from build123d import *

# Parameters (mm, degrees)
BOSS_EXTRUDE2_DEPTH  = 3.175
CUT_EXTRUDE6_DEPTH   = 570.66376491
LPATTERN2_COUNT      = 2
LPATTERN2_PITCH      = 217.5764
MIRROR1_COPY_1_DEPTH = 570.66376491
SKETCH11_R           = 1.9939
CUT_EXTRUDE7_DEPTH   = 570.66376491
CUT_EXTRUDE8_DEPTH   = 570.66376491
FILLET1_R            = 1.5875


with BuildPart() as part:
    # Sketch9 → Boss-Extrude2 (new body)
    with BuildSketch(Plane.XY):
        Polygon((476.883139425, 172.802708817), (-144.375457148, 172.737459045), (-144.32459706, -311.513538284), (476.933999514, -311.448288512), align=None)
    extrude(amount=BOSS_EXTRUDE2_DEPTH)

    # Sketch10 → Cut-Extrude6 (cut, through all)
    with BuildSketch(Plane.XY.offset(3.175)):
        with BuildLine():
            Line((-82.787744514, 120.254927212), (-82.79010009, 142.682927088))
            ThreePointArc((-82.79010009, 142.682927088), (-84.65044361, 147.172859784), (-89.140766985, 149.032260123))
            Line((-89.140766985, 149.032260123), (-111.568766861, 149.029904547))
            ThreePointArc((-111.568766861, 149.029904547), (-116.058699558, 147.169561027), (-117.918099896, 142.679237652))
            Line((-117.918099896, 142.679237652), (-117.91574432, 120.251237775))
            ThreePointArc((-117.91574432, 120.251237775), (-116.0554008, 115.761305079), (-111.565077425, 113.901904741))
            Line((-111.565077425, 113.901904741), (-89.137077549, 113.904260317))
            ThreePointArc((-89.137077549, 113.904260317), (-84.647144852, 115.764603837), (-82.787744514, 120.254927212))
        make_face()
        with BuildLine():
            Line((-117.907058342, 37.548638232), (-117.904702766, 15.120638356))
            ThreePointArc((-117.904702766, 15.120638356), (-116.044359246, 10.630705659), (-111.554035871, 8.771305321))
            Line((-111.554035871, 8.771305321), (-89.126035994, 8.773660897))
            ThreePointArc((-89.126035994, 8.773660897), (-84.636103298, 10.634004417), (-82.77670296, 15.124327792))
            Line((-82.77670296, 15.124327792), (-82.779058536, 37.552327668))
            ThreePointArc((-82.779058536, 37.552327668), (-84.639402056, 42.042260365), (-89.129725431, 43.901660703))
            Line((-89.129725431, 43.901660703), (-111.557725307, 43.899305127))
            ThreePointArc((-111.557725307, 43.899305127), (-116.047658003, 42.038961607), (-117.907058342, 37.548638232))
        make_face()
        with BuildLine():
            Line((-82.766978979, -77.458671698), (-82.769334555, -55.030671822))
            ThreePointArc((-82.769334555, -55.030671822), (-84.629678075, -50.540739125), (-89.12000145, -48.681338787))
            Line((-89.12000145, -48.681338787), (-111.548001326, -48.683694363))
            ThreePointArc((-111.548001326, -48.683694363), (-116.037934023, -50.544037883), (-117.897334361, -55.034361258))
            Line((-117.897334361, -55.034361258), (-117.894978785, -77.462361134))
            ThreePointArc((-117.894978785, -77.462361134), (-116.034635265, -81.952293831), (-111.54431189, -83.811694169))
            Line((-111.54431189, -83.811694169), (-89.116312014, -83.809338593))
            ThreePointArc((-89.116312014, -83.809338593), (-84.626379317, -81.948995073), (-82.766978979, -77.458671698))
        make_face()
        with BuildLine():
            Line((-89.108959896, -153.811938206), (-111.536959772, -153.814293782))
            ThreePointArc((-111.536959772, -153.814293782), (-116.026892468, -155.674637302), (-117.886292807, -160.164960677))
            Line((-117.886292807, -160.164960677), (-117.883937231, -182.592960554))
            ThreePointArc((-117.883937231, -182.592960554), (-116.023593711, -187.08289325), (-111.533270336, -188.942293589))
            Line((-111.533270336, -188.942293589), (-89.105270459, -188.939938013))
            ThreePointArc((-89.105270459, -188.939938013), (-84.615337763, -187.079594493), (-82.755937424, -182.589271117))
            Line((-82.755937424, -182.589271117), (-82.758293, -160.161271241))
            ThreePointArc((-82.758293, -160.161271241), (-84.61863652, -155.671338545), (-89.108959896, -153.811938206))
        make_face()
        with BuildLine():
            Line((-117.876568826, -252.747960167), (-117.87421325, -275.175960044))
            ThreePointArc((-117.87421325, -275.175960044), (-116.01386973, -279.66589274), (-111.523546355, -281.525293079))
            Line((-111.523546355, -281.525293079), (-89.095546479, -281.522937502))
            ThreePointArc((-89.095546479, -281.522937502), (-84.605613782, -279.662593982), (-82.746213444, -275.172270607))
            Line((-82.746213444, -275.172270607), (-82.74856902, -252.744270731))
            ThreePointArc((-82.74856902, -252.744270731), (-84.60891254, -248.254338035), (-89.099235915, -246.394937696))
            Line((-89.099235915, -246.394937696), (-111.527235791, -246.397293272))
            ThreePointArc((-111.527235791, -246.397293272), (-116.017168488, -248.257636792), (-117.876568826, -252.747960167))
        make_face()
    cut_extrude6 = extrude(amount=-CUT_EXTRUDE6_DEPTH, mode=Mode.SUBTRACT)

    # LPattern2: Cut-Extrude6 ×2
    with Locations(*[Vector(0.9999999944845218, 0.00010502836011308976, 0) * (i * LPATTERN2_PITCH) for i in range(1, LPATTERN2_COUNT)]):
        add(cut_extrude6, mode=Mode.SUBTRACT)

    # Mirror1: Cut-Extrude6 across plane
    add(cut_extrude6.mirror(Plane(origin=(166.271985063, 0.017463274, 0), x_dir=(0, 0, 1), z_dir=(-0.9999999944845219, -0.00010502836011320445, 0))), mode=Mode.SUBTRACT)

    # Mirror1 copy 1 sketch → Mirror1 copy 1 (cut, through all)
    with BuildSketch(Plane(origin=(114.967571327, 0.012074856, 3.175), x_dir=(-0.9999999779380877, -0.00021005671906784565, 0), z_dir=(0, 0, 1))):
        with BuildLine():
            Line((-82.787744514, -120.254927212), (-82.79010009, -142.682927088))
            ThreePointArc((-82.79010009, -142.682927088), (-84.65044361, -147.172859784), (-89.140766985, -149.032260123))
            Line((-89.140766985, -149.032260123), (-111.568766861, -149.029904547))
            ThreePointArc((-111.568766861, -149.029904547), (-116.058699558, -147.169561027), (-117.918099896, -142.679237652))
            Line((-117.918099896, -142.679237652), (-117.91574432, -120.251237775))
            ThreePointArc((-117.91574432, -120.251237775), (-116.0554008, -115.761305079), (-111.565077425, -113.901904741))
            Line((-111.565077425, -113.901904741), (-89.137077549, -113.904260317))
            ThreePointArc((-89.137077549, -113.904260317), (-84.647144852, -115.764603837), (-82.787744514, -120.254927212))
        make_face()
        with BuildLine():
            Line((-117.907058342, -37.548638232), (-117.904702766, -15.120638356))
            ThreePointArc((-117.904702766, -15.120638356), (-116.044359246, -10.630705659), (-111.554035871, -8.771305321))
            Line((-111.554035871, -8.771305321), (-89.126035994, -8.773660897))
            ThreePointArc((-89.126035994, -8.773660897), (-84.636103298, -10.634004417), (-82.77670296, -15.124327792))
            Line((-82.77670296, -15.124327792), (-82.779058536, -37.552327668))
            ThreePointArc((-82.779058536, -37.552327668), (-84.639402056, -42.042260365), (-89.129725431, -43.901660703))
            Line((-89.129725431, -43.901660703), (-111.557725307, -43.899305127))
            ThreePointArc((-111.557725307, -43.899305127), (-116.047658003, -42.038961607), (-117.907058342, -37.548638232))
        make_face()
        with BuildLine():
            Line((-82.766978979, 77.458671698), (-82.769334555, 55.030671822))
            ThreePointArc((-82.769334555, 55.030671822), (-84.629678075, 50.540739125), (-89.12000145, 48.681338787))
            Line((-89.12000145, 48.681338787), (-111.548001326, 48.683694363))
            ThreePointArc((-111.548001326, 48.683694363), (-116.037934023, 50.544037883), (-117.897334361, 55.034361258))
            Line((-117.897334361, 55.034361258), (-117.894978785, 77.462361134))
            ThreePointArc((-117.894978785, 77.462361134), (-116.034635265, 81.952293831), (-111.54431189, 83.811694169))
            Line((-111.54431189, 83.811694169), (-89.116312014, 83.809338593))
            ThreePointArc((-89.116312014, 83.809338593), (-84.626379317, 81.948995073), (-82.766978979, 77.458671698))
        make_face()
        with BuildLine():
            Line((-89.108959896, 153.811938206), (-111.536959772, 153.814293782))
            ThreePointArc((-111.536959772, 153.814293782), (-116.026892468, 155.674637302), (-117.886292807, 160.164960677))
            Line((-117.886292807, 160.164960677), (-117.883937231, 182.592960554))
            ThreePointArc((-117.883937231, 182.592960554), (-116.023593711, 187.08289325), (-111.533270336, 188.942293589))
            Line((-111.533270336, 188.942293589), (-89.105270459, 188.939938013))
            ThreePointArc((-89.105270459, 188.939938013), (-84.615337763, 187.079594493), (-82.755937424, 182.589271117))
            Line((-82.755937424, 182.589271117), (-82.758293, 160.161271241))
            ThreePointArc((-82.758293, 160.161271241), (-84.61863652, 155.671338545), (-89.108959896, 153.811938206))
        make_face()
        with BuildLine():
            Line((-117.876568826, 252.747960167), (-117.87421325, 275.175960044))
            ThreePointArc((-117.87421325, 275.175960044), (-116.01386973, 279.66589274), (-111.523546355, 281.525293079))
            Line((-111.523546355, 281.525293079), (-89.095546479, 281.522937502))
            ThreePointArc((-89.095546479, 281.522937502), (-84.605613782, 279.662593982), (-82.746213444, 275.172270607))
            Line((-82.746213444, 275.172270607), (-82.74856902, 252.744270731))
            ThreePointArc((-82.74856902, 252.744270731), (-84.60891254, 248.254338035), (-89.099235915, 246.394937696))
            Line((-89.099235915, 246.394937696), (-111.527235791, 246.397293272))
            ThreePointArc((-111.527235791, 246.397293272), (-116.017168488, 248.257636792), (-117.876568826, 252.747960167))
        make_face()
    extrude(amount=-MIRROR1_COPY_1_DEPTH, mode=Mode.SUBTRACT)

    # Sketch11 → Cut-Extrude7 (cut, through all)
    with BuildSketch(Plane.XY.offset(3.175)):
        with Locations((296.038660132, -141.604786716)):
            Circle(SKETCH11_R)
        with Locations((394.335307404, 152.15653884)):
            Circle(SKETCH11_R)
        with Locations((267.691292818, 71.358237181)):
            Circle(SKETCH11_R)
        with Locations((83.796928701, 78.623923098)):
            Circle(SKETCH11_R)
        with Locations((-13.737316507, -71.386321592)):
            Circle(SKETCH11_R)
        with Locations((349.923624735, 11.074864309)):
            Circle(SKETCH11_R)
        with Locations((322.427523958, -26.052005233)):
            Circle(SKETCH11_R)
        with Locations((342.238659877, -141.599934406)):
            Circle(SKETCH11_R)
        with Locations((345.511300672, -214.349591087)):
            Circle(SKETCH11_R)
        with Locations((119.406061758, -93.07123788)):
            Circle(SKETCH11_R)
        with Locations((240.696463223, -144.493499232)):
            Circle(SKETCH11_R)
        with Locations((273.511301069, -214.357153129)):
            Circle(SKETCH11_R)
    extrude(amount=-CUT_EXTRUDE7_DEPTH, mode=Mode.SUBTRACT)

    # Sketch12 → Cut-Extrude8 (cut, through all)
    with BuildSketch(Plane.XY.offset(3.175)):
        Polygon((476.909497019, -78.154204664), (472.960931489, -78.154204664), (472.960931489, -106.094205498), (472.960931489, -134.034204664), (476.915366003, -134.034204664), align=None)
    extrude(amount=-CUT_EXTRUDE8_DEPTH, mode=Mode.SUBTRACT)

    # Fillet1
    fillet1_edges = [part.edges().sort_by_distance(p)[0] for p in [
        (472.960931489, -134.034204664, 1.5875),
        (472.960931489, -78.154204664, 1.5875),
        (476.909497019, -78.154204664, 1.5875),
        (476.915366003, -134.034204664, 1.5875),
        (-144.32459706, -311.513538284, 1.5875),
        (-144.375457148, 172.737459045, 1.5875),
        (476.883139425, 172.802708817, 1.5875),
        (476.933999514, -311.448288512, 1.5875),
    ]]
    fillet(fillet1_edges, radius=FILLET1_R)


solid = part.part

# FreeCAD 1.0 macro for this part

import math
import FreeCAD as App
import Part
import Sketcher
from FreeCAD import Vector
Q = App.Units.Quantity


def edges_at(feature, points):
    """Names of the edges that pass closest to the given points."""
    edges = feature.Shape.Edges
    near = lambda p: min(range(len(edges)), key=lambda i: edges[i].distToShape(Part.Vertex(*p))[0])
    return sorted({f"Edge{near(p) + 1}" for p in points})

doc = App.newDocument("Part")
body = doc.addObject("PartDesign::Body", "Body")

# Sketch on XY plane
sketch1 = body.newObject("Sketcher::SketchObject", "Sketch")
sketch1.AttachmentSupport = (doc.getObject("XY_Plane"), [""])
sketch1.MapMode = "FlatFace"
sketch1.addGeometry(Part.LineSegment(Vector(477, 173, 0), Vector(-144, 173, 0)), False)
sketch1.addGeometry(Part.LineSegment(Vector(-144, 173, 0), Vector(-144, -312, 0)), False)
sketch1.addGeometry(Part.LineSegment(Vector(-144, -312, 0), Vector(477, -311, 0)), False)
sketch1.addGeometry(Part.LineSegment(Vector(477, -311, 0), Vector(477, 173, 0)), False)
sketch1.addConstraint(Sketcher.Constraint("Coincident", 0, 2, 1, 1))
sketch1.addConstraint(Sketcher.Constraint("Coincident", 1, 2, 2, 1))
sketch1.addConstraint(Sketcher.Constraint("Coincident", 2, 2, 3, 1))
sketch1.addConstraint(Sketcher.Constraint("Coincident", 3, 2, 0, 1))
sketch1.addConstraint(Sketcher.Constraint("Perpendicular", 0, 1))
sketch1.addConstraint(Sketcher.Constraint("Perpendicular", 1, 2))
sketch1.addConstraint(Sketcher.Constraint("Perpendicular", 2, 3))
sketch1.addConstraint(Sketcher.Constraint("Distance", 0, Q("24.459 in")))
sketch1.addConstraint(Sketcher.Constraint("Distance", 1, Q("19.065 in")))
sketch1.addConstraint(Sketcher.Constraint("DistanceX", -1, 1, 2, 2, Q("476.934 mm")))
sketch1.addConstraint(Sketcher.Constraint("DistanceY", -1, 1, 0, 2, Q("172.737459 mm")))
sketch1.addConstraint(Sketcher.Constraint("DistanceY", 2, 2, -1, 1, Q("311.448289 mm")))
pad1 = body.newObject("PartDesign::Pad", "Pad")
pad1.Profile = sketch1
pad1.Length = Q("0.125 in")

# Sketch on XY plane
sketch2 = body.newObject("Sketcher::SketchObject", "Sketch001")
sketch2.AttachmentSupport = (doc.getObject("XY_Plane"), [""])
sketch2.MapMode = "FlatFace"
sketch2.AttachmentOffset = App.Placement(Vector(0, 0, 0.125 * 25.4), App.Rotation())
sketch2.addGeometry(Part.LineSegment(Vector(-83, 120, 0), Vector(-83, 143, 0)), False)
sketch2.addGeometry(Part.ArcOfCircle(Part.Circle(Vector(-89, 143, 0), Vector(0, 0, 1), 6), math.radians(0), math.radians(90)), False)
sketch2.addGeometry(Part.LineSegment(Vector(-89, 149, 0), Vector(-112, 149, 0)), False)
sketch2.addGeometry(Part.ArcOfCircle(Part.Circle(Vector(-112, 143, 0), Vector(0, 0, 1), 6), math.radians(90), math.radians(180)), False)
sketch2.addGeometry(Part.LineSegment(Vector(-118, 143, 0), Vector(-118, 120, 0)), False)
sketch2.addGeometry(Part.ArcOfCircle(Part.Circle(Vector(-112, 120, 0), Vector(0, 0, 1), 6), math.radians(-180), math.radians(-90)), False)
sketch2.addGeometry(Part.LineSegment(Vector(-112, 114, 0), Vector(-89, 114, 0)), False)
sketch2.addGeometry(Part.ArcOfCircle(Part.Circle(Vector(-89, 120, 0), Vector(0, 0, 1), 6), math.radians(-90), math.radians(0)), False)
sketch2.addGeometry(Part.LineSegment(Vector(-118, 38, 0), Vector(-118, 15, 0)), False)
sketch2.addGeometry(Part.ArcOfCircle(Part.Circle(Vector(-112, 15, 0), Vector(0, 0, 1), 6), math.radians(-180), math.radians(-90)), False)
sketch2.addGeometry(Part.LineSegment(Vector(-112, 9, 0), Vector(-89, 9, 0)), False)
sketch2.addGeometry(Part.ArcOfCircle(Part.Circle(Vector(-89, 15, 0), Vector(0, 0, 1), 6), math.radians(-90), math.radians(0)), False)
sketch2.addGeometry(Part.LineSegment(Vector(-83, 15, 0), Vector(-83, 38, 0)), False)
sketch2.addGeometry(Part.ArcOfCircle(Part.Circle(Vector(-89, 38, 0), Vector(0, 0, 1), 6), math.radians(0), math.radians(90)), False)
sketch2.addGeometry(Part.LineSegment(Vector(-89, 44, 0), Vector(-112, 44, 0)), False)
sketch2.addGeometry(Part.ArcOfCircle(Part.Circle(Vector(-112, 38, 0), Vector(0, 0, 1), 6), math.radians(90), math.radians(180)), False)
sketch2.addGeometry(Part.LineSegment(Vector(-83, -77, 0), Vector(-83, -55, 0)), False)
sketch2.addGeometry(Part.ArcOfCircle(Part.Circle(Vector(-89, -55, 0), Vector(0, 0, 1), 6), math.radians(0), math.radians(90)), False)
sketch2.addGeometry(Part.LineSegment(Vector(-89, -49, 0), Vector(-112, -49, 0)), False)
sketch2.addGeometry(Part.ArcOfCircle(Part.Circle(Vector(-112, -55, 0), Vector(0, 0, 1), 6), math.radians(90), math.radians(180)), False)
sketch2.addGeometry(Part.LineSegment(Vector(-118, -55, 0), Vector(-118, -77, 0)), False)
sketch2.addGeometry(Part.ArcOfCircle(Part.Circle(Vector(-112, -77, 0), Vector(0, 0, 1), 6), math.radians(-180), math.radians(-90)), False)
sketch2.addGeometry(Part.LineSegment(Vector(-112, -84, 0), Vector(-89, -84, 0)), False)
sketch2.addGeometry(Part.ArcOfCircle(Part.Circle(Vector(-89, -77, 0), Vector(0, 0, 1), 6), math.radians(-90), math.radians(0)), False)
sketch2.addGeometry(Part.LineSegment(Vector(-89, -154, 0), Vector(-112, -154, 0)), False)
sketch2.addGeometry(Part.ArcOfCircle(Part.Circle(Vector(-112, -160, 0), Vector(0, 0, 1), 6), math.radians(90), math.radians(180)), False)
sketch2.addGeometry(Part.LineSegment(Vector(-118, -160, 0), Vector(-118, -183, 0)), False)
sketch2.addGeometry(Part.ArcOfCircle(Part.Circle(Vector(-112, -183, 0), Vector(0, 0, 1), 6), math.radians(-180), math.radians(-90)), False)
sketch2.addGeometry(Part.LineSegment(Vector(-112, -189, 0), Vector(-89, -189, 0)), False)
sketch2.addGeometry(Part.ArcOfCircle(Part.Circle(Vector(-89, -183, 0), Vector(0, 0, 1), 6), math.radians(-90), math.radians(0)), False)
sketch2.addGeometry(Part.LineSegment(Vector(-83, -183, 0), Vector(-83, -160, 0)), False)
sketch2.addGeometry(Part.ArcOfCircle(Part.Circle(Vector(-89, -160, 0), Vector(0, 0, 1), 6), math.radians(0), math.radians(90)), False)
sketch2.addGeometry(Part.LineSegment(Vector(-118, -253, 0), Vector(-118, -275, 0)), False)
sketch2.addGeometry(Part.ArcOfCircle(Part.Circle(Vector(-112, -275, 0), Vector(0, 0, 1), 6), math.radians(-180), math.radians(-90)), False)
sketch2.addGeometry(Part.LineSegment(Vector(-112, -282, 0), Vector(-89, -282, 0)), False)
sketch2.addGeometry(Part.ArcOfCircle(Part.Circle(Vector(-89, -275, 0), Vector(0, 0, 1), 6), math.radians(-90), math.radians(0)), False)
sketch2.addGeometry(Part.LineSegment(Vector(-83, -275, 0), Vector(-83, -253, 0)), False)
sketch2.addGeometry(Part.ArcOfCircle(Part.Circle(Vector(-89, -253, 0), Vector(0, 0, 1), 6), math.radians(0), math.radians(90)), False)
sketch2.addGeometry(Part.LineSegment(Vector(-89, -246, 0), Vector(-112, -246, 0)), False)
sketch2.addGeometry(Part.ArcOfCircle(Part.Circle(Vector(-112, -253, 0), Vector(0, 0, 1), 6), math.radians(90), math.radians(180)), False)
sketch2.addConstraint(Sketcher.Constraint("Tangent", 0, 2, 1, 1))
sketch2.addConstraint(Sketcher.Constraint("Tangent", 1, 2, 2, 1))
sketch2.addConstraint(Sketcher.Constraint("Tangent", 2, 2, 3, 1))
sketch2.addConstraint(Sketcher.Constraint("Tangent", 3, 2, 4, 1))
sketch2.addConstraint(Sketcher.Constraint("Tangent", 4, 2, 5, 1))
sketch2.addConstraint(Sketcher.Constraint("Tangent", 5, 2, 6, 1))
sketch2.addConstraint(Sketcher.Constraint("Tangent", 6, 2, 7, 1))
sketch2.addConstraint(Sketcher.Constraint("Tangent", 7, 2, 0, 1))
sketch2.addConstraint(Sketcher.Constraint("Tangent", 8, 2, 9, 1))
sketch2.addConstraint(Sketcher.Constraint("Tangent", 9, 2, 10, 1))
sketch2.addConstraint(Sketcher.Constraint("Tangent", 10, 2, 11, 1))
sketch2.addConstraint(Sketcher.Constraint("Tangent", 11, 2, 12, 1))
sketch2.addConstraint(Sketcher.Constraint("Tangent", 12, 2, 13, 1))
sketch2.addConstraint(Sketcher.Constraint("Tangent", 13, 2, 14, 1))
sketch2.addConstraint(Sketcher.Constraint("Tangent", 14, 2, 15, 1))
sketch2.addConstraint(Sketcher.Constraint("Tangent", 15, 2, 8, 1))
sketch2.addConstraint(Sketcher.Constraint("Tangent", 16, 2, 17, 1))
sketch2.addConstraint(Sketcher.Constraint("Tangent", 17, 2, 18, 1))
sketch2.addConstraint(Sketcher.Constraint("Tangent", 18, 2, 19, 1))
sketch2.addConstraint(Sketcher.Constraint("Tangent", 19, 2, 20, 1))
sketch2.addConstraint(Sketcher.Constraint("Tangent", 20, 2, 21, 1))
sketch2.addConstraint(Sketcher.Constraint("Tangent", 21, 2, 22, 1))
sketch2.addConstraint(Sketcher.Constraint("Tangent", 22, 2, 23, 1))
sketch2.addConstraint(Sketcher.Constraint("Tangent", 23, 2, 16, 1))
sketch2.addConstraint(Sketcher.Constraint("Tangent", 24, 2, 25, 1))
sketch2.addConstraint(Sketcher.Constraint("Tangent", 25, 2, 26, 1))
sketch2.addConstraint(Sketcher.Constraint("Tangent", 26, 2, 27, 1))
sketch2.addConstraint(Sketcher.Constraint("Tangent", 27, 2, 28, 1))
sketch2.addConstraint(Sketcher.Constraint("Tangent", 28, 2, 29, 1))
sketch2.addConstraint(Sketcher.Constraint("Tangent", 29, 2, 30, 1))
sketch2.addConstraint(Sketcher.Constraint("Tangent", 30, 2, 31, 1))
sketch2.addConstraint(Sketcher.Constraint("Tangent", 31, 2, 24, 1))
sketch2.addConstraint(Sketcher.Constraint("Tangent", 32, 2, 33, 1))
sketch2.addConstraint(Sketcher.Constraint("Tangent", 33, 2, 34, 1))
sketch2.addConstraint(Sketcher.Constraint("Tangent", 34, 2, 35, 1))
sketch2.addConstraint(Sketcher.Constraint("Tangent", 35, 2, 36, 1))
sketch2.addConstraint(Sketcher.Constraint("Tangent", 36, 2, 37, 1))
sketch2.addConstraint(Sketcher.Constraint("Tangent", 37, 2, 38, 1))
sketch2.addConstraint(Sketcher.Constraint("Tangent", 38, 2, 39, 1))
sketch2.addConstraint(Sketcher.Constraint("Tangent", 39, 2, 32, 1))
sketch2.addConstraint(Sketcher.Constraint("Equal", 1, 3))
sketch2.addConstraint(Sketcher.Constraint("Equal", 3, 5))
sketch2.addConstraint(Sketcher.Constraint("Equal", 5, 7))
sketch2.addConstraint(Sketcher.Constraint("Equal", 7, 9))
sketch2.addConstraint(Sketcher.Constraint("Equal", 9, 11))
sketch2.addConstraint(Sketcher.Constraint("Equal", 11, 13))
sketch2.addConstraint(Sketcher.Constraint("Equal", 13, 15))
sketch2.addConstraint(Sketcher.Constraint("Equal", 15, 17))
sketch2.addConstraint(Sketcher.Constraint("Equal", 17, 19))
sketch2.addConstraint(Sketcher.Constraint("Equal", 19, 21))
sketch2.addConstraint(Sketcher.Constraint("Equal", 21, 23))
sketch2.addConstraint(Sketcher.Constraint("Equal", 23, 25))
sketch2.addConstraint(Sketcher.Constraint("Equal", 25, 27))
sketch2.addConstraint(Sketcher.Constraint("Equal", 27, 29))
sketch2.addConstraint(Sketcher.Constraint("Equal", 29, 31))
sketch2.addConstraint(Sketcher.Constraint("Equal", 31, 33))
sketch2.addConstraint(Sketcher.Constraint("Equal", 33, 35))
sketch2.addConstraint(Sketcher.Constraint("Equal", 35, 37))
sketch2.addConstraint(Sketcher.Constraint("Equal", 37, 39))
sketch2.addConstraint(Sketcher.Constraint("Perpendicular", 0, 2))
sketch2.addConstraint(Sketcher.Constraint("Perpendicular", 2, 4))
sketch2.addConstraint(Sketcher.Constraint("Perpendicular", 4, 6))
sketch2.addConstraint(Sketcher.Constraint("Perpendicular", 6, 8))
sketch2.addConstraint(Sketcher.Constraint("Perpendicular", 8, 10))
sketch2.addConstraint(Sketcher.Constraint("Perpendicular", 10, 12))
sketch2.addConstraint(Sketcher.Constraint("Perpendicular", 12, 14))
sketch2.addConstraint(Sketcher.Constraint("Perpendicular", 14, 16))
sketch2.addConstraint(Sketcher.Constraint("Perpendicular", 16, 18))
sketch2.addConstraint(Sketcher.Constraint("Perpendicular", 18, 20))
sketch2.addConstraint(Sketcher.Constraint("Perpendicular", 20, 22))
sketch2.addConstraint(Sketcher.Constraint("Parallel", 22, 24))
sketch2.addConstraint(Sketcher.Constraint("Perpendicular", 24, 26))
sketch2.addConstraint(Sketcher.Constraint("Perpendicular", 26, 28))
sketch2.addConstraint(Sketcher.Constraint("Perpendicular", 28, 30))
sketch2.addConstraint(Sketcher.Constraint("Parallel", 30, 32))
sketch2.addConstraint(Sketcher.Constraint("Perpendicular", 32, 34))
sketch2.addConstraint(Sketcher.Constraint("Perpendicular", 34, 36))
sketch2.addConstraint(Sketcher.Constraint("Perpendicular", 36, 38))
sketch2.addConstraint(Sketcher.Constraint("Equal", 0, 2))
sketch2.addConstraint(Sketcher.Constraint("Equal", 6, 8))
sketch2.addConstraint(Sketcher.Constraint("Equal", 8, 10))
sketch2.addConstraint(Sketcher.Constraint("Equal", 14, 16))
sketch2.addConstraint(Sketcher.Constraint("Equal", 16, 18))
sketch2.addConstraint(Sketcher.Constraint("Equal", 22, 24))
sketch2.addConstraint(Sketcher.Constraint("Equal", 24, 26))
sketch2.addConstraint(Sketcher.Constraint("Equal", 30, 32))
sketch2.addConstraint(Sketcher.Constraint("Equal", 32, 34))
sketch2.addConstraint(Sketcher.Constraint("Radius", 1, Q("0.25 in")))
sketch2.addConstraint(Sketcher.Constraint("DistanceY", 9, 3, 5, 3, Q("4.139 in")))
sketch2.addConstraint(Sketcher.Constraint("DistanceY", 17, 3, 13, 3, Q("3.645 in")))
sketch2.addConstraint(Sketcher.Constraint("DistanceY", 25, 3, 19, 3, Q("4.139 in")))
sketch2.addConstraint(Sketcher.Constraint("DistanceY", 33, 3, 27, 3, Q("3.645 in")))
sketch2.addConstraint(Sketcher.Constraint("DistanceX", 27, 3, -1, 1, Q("4.3910999 in")))
sketch2.addConstraint(Sketcher.Constraint("Distance", 0, Q("22.428 mm")))
sketch2.addConstraint(Sketcher.Constraint("DistanceX", 1, 3, -1, 1, Q("89.1401 mm")))
sketch2.addConstraint(Sketcher.Constraint("DistanceX", 17, 2, -1, 1, Q("89.120001 mm")))
sketch2.addConstraint(Sketcher.Constraint("DistanceX", 10, 2, 16, 2, Q("6.356701 mm")))
sketch2.addConstraint(Sketcher.Constraint("DistanceY", -1, 1, 1, 3, Q("142.68226 mm")))
sketch2.addConstraint(Sketcher.Constraint("DistanceX", 13, 3, -1, 1, Q("89.129058 mm")))
sketch2.addConstraint(Sketcher.Constraint("DistanceX", 37, 3, -1, 1, Q("89.098569 mm")))
pocket1 = body.newObject("PartDesign::Pocket", "Pocket")
pocket1.Profile = sketch2
pocket1.Type = "ThroughAll"
doc.recompute()

datumline = body.newObject("PartDesign::Line", "DatumLine")
datumline.Placement = App.Placement(Vector(0, 0, 0), App.Rotation(Vector(0, 0, 1), Vector(0.999999994, 0.000105028, 0)))
linearpattern = body.newObject("PartDesign::LinearPattern", "LinearPattern")
linearpattern.Originals = [pocket1]
linearpattern.Direction = (datumline, [""])
linearpattern.Mode = "offset"
linearpattern.Offset = Q("8.566 in")
linearpattern.Occurrences = 2
body.Tip = linearpattern
doc.recompute()

datumplane = body.newObject("PartDesign::Plane", "DatumPlane")
datumplane.Placement = App.Placement(Vector(166.271985, 0.017463, 0), App.Rotation(Vector(-0.000105028, 0.999999994, 0), Vector(0, 0, -1), Vector(-0.999999994, -0.000105028, 0), "ZXY"))
mirrored = body.newObject("PartDesign::Mirrored", "Mirrored")
mirrored.Originals = [pocket1]
mirrored.MirrorPlane = (datumplane, [""])
body.Tip = mirrored

# Sketch on XY plane
sketch3 = body.newObject("Sketcher::SketchObject", "Sketch002")
sketch3.AttachmentSupport = (doc.getObject("XY_Plane"), [""])
sketch3.MapMode = "FlatFace"
sketch3.AttachmentOffset = App.Placement(Vector(0, 0, 0.125 * 25.4), App.Rotation())
sketch3.addGeometry(Part.LineSegment(Vector(198, 143, 0), Vector(198, 120, 0)), False)
sketch3.addGeometry(Part.ArcOfCircle(Part.Circle(Vector(204, 120, 0), Vector(0, 0, 1), 6), math.radians(-180), math.radians(-90)), False)
sketch3.addGeometry(Part.LineSegment(Vector(204, 114, 0), Vector(227, 114, 0)), False)
sketch3.addGeometry(Part.ArcOfCircle(Part.Circle(Vector(227, 120, 0), Vector(0, 0, 1), 6), math.radians(-90), math.radians(0)), False)
sketch3.addGeometry(Part.LineSegment(Vector(233, 120, 0), Vector(233, 143, 0)), False)
sketch3.addGeometry(Part.ArcOfCircle(Part.Circle(Vector(227, 143, 0), Vector(0, 0, 1), 6), math.radians(0), math.radians(90)), False)
sketch3.addGeometry(Part.LineSegment(Vector(227, 149, 0), Vector(204, 149, 0)), False)
sketch3.addGeometry(Part.ArcOfCircle(Part.Circle(Vector(204, 143, 0), Vector(0, 0, 1), 6), math.radians(90), math.radians(180)), False)
sketch3.addGeometry(Part.LineSegment(Vector(233, 15, 0), Vector(233, 38, 0)), False)
sketch3.addGeometry(Part.ArcOfCircle(Part.Circle(Vector(227, 38, 0), Vector(0, 0, 1), 6), math.radians(0), math.radians(90)), False)
sketch3.addGeometry(Part.LineSegment(Vector(227, 44, 0), Vector(204, 44, 0)), False)
sketch3.addGeometry(Part.ArcOfCircle(Part.Circle(Vector(204, 38, 0), Vector(0, 0, 1), 6), math.radians(90), math.radians(180)), False)
sketch3.addGeometry(Part.LineSegment(Vector(198, 38, 0), Vector(198, 15, 0)), False)
sketch3.addGeometry(Part.ArcOfCircle(Part.Circle(Vector(204, 15, 0), Vector(0, 0, 1), 6), math.radians(-180), math.radians(-90)), False)
sketch3.addGeometry(Part.LineSegment(Vector(204, 9, 0), Vector(227, 9, 0)), False)
sketch3.addGeometry(Part.ArcOfCircle(Part.Circle(Vector(227, 15, 0), Vector(0, 0, 1), 6), math.radians(-90), math.radians(0)), False)
sketch3.addGeometry(Part.LineSegment(Vector(198, -55, 0), Vector(198, -77, 0)), False)
sketch3.addGeometry(Part.ArcOfCircle(Part.Circle(Vector(204, -77, 0), Vector(0, 0, 1), 6), math.radians(-180), math.radians(-90)), False)
sketch3.addGeometry(Part.LineSegment(Vector(204, -84, 0), Vector(227, -84, 0)), False)
sketch3.addGeometry(Part.ArcOfCircle(Part.Circle(Vector(227, -77, 0), Vector(0, 0, 1), 6), math.radians(-90), math.radians(0)), False)
sketch3.addGeometry(Part.LineSegment(Vector(233, -77, 0), Vector(233, -55, 0)), False)
sketch3.addGeometry(Part.ArcOfCircle(Part.Circle(Vector(227, -55, 0), Vector(0, 0, 1), 6), math.radians(0), math.radians(90)), False)
sketch3.addGeometry(Part.LineSegment(Vector(227, -49, 0), Vector(204, -49, 0)), False)
sketch3.addGeometry(Part.ArcOfCircle(Part.Circle(Vector(204, -55, 0), Vector(0, 0, 1), 6), math.radians(90), math.radians(180)), False)
sketch3.addGeometry(Part.LineSegment(Vector(227, -154, 0), Vector(204, -154, 0)), False)
sketch3.addGeometry(Part.ArcOfCircle(Part.Circle(Vector(204, -160, 0), Vector(0, 0, 1), 6), math.radians(90), math.radians(180)), False)
sketch3.addGeometry(Part.LineSegment(Vector(198, -160, 0), Vector(198, -183, 0)), False)
sketch3.addGeometry(Part.ArcOfCircle(Part.Circle(Vector(204, -183, 0), Vector(0, 0, 1), 6), math.radians(-180), math.radians(-90)), False)
sketch3.addGeometry(Part.LineSegment(Vector(204, -189, 0), Vector(227, -189, 0)), False)
sketch3.addGeometry(Part.ArcOfCircle(Part.Circle(Vector(227, -183, 0), Vector(0, 0, 1), 6), math.radians(-90), math.radians(0)), False)
sketch3.addGeometry(Part.LineSegment(Vector(233, -183, 0), Vector(233, -160, 0)), False)
sketch3.addGeometry(Part.ArcOfCircle(Part.Circle(Vector(227, -160, 0), Vector(0, 0, 1), 6), math.radians(0), math.radians(90)), False)
sketch3.addGeometry(Part.LineSegment(Vector(233, -275, 0), Vector(233, -253, 0)), False)
sketch3.addGeometry(Part.ArcOfCircle(Part.Circle(Vector(227, -253, 0), Vector(0, 0, 1), 6), math.radians(0), math.radians(90)), False)
sketch3.addGeometry(Part.LineSegment(Vector(227, -246, 0), Vector(204, -246, 0)), False)
sketch3.addGeometry(Part.ArcOfCircle(Part.Circle(Vector(204, -253, 0), Vector(0, 0, 1), 6), math.radians(90), math.radians(180)), False)
sketch3.addGeometry(Part.LineSegment(Vector(198, -253, 0), Vector(198, -275, 0)), False)
sketch3.addGeometry(Part.ArcOfCircle(Part.Circle(Vector(204, -275, 0), Vector(0, 0, 1), 6), math.radians(-180), math.radians(-90)), False)
sketch3.addGeometry(Part.LineSegment(Vector(204, -281, 0), Vector(227, -281, 0)), False)
sketch3.addGeometry(Part.ArcOfCircle(Part.Circle(Vector(227, -275, 0), Vector(0, 0, 1), 6), math.radians(-90), math.radians(0)), False)
sketch3.addConstraint(Sketcher.Constraint("Tangent", 0, 2, 1, 1))
sketch3.addConstraint(Sketcher.Constraint("Tangent", 1, 2, 2, 1))
sketch3.addConstraint(Sketcher.Constraint("Tangent", 2, 2, 3, 1))
sketch3.addConstraint(Sketcher.Constraint("Tangent", 3, 2, 4, 1))
sketch3.addConstraint(Sketcher.Constraint("Tangent", 4, 2, 5, 1))
sketch3.addConstraint(Sketcher.Constraint("Tangent", 5, 2, 6, 1))
sketch3.addConstraint(Sketcher.Constraint("Tangent", 6, 2, 7, 1))
sketch3.addConstraint(Sketcher.Constraint("Tangent", 7, 2, 0, 1))
sketch3.addConstraint(Sketcher.Constraint("Tangent", 8, 2, 9, 1))
sketch3.addConstraint(Sketcher.Constraint("Tangent", 9, 2, 10, 1))
sketch3.addConstraint(Sketcher.Constraint("Tangent", 10, 2, 11, 1))
sketch3.addConstraint(Sketcher.Constraint("Tangent", 11, 2, 12, 1))
sketch3.addConstraint(Sketcher.Constraint("Tangent", 12, 2, 13, 1))
sketch3.addConstraint(Sketcher.Constraint("Tangent", 13, 2, 14, 1))
sketch3.addConstraint(Sketcher.Constraint("Tangent", 14, 2, 15, 1))
sketch3.addConstraint(Sketcher.Constraint("Tangent", 15, 2, 8, 1))
sketch3.addConstraint(Sketcher.Constraint("Tangent", 16, 2, 17, 1))
sketch3.addConstraint(Sketcher.Constraint("Tangent", 17, 2, 18, 1))
sketch3.addConstraint(Sketcher.Constraint("Tangent", 18, 2, 19, 1))
sketch3.addConstraint(Sketcher.Constraint("Tangent", 19, 2, 20, 1))
sketch3.addConstraint(Sketcher.Constraint("Tangent", 20, 2, 21, 1))
sketch3.addConstraint(Sketcher.Constraint("Tangent", 21, 2, 22, 1))
sketch3.addConstraint(Sketcher.Constraint("Tangent", 22, 2, 23, 1))
sketch3.addConstraint(Sketcher.Constraint("Tangent", 23, 2, 16, 1))
sketch3.addConstraint(Sketcher.Constraint("Tangent", 24, 2, 25, 1))
sketch3.addConstraint(Sketcher.Constraint("Tangent", 25, 2, 26, 1))
sketch3.addConstraint(Sketcher.Constraint("Tangent", 26, 2, 27, 1))
sketch3.addConstraint(Sketcher.Constraint("Tangent", 27, 2, 28, 1))
sketch3.addConstraint(Sketcher.Constraint("Tangent", 28, 2, 29, 1))
sketch3.addConstraint(Sketcher.Constraint("Tangent", 29, 2, 30, 1))
sketch3.addConstraint(Sketcher.Constraint("Tangent", 30, 2, 31, 1))
sketch3.addConstraint(Sketcher.Constraint("Tangent", 31, 2, 24, 1))
sketch3.addConstraint(Sketcher.Constraint("Tangent", 32, 2, 33, 1))
sketch3.addConstraint(Sketcher.Constraint("Tangent", 33, 2, 34, 1))
sketch3.addConstraint(Sketcher.Constraint("Tangent", 34, 2, 35, 1))
sketch3.addConstraint(Sketcher.Constraint("Tangent", 35, 2, 36, 1))
sketch3.addConstraint(Sketcher.Constraint("Tangent", 36, 2, 37, 1))
sketch3.addConstraint(Sketcher.Constraint("Tangent", 37, 2, 38, 1))
sketch3.addConstraint(Sketcher.Constraint("Tangent", 38, 2, 39, 1))
sketch3.addConstraint(Sketcher.Constraint("Tangent", 39, 2, 32, 1))
sketch3.addConstraint(Sketcher.Constraint("Equal", 1, 3))
sketch3.addConstraint(Sketcher.Constraint("Equal", 3, 5))
sketch3.addConstraint(Sketcher.Constraint("Equal", 5, 7))
sketch3.addConstraint(Sketcher.Constraint("Equal", 7, 9))
sketch3.addConstraint(Sketcher.Constraint("Equal", 9, 11))
sketch3.addConstraint(Sketcher.Constraint("Equal", 11, 13))
sketch3.addConstraint(Sketcher.Constraint("Equal", 13, 15))
sketch3.addConstraint(Sketcher.Constraint("Equal", 15, 17))
sketch3.addConstraint(Sketcher.Constraint("Equal", 17, 19))
sketch3.addConstraint(Sketcher.Constraint("Equal", 19, 21))
sketch3.addConstraint(Sketcher.Constraint("Equal", 21, 23))
sketch3.addConstraint(Sketcher.Constraint("Equal", 23, 25))
sketch3.addConstraint(Sketcher.Constraint("Equal", 25, 27))
sketch3.addConstraint(Sketcher.Constraint("Equal", 27, 29))
sketch3.addConstraint(Sketcher.Constraint("Equal", 29, 31))
sketch3.addConstraint(Sketcher.Constraint("Equal", 31, 33))
sketch3.addConstraint(Sketcher.Constraint("Equal", 33, 35))
sketch3.addConstraint(Sketcher.Constraint("Equal", 35, 37))
sketch3.addConstraint(Sketcher.Constraint("Equal", 37, 39))
sketch3.addConstraint(Sketcher.Constraint("Perpendicular", 0, 2))
sketch3.addConstraint(Sketcher.Constraint("Perpendicular", 2, 4))
sketch3.addConstraint(Sketcher.Constraint("Perpendicular", 4, 6))
sketch3.addConstraint(Sketcher.Constraint("Perpendicular", 6, 8))
sketch3.addConstraint(Sketcher.Constraint("Perpendicular", 8, 10))
sketch3.addConstraint(Sketcher.Constraint("Perpendicular", 10, 12))
sketch3.addConstraint(Sketcher.Constraint("Perpendicular", 12, 14))
sketch3.addConstraint(Sketcher.Constraint("Perpendicular", 14, 16))
sketch3.addConstraint(Sketcher.Constraint("Perpendicular", 16, 18))
sketch3.addConstraint(Sketcher.Constraint("Perpendicular", 18, 20))
sketch3.addConstraint(Sketcher.Constraint("Perpendicular", 20, 22))
sketch3.addConstraint(Sketcher.Constraint("Parallel", 22, 24))
sketch3.addConstraint(Sketcher.Constraint("Perpendicular", 24, 26))
sketch3.addConstraint(Sketcher.Constraint("Perpendicular", 26, 28))
sketch3.addConstraint(Sketcher.Constraint("Perpendicular", 28, 30))
sketch3.addConstraint(Sketcher.Constraint("Parallel", 30, 32))
sketch3.addConstraint(Sketcher.Constraint("Perpendicular", 32, 34))
sketch3.addConstraint(Sketcher.Constraint("Perpendicular", 34, 36))
sketch3.addConstraint(Sketcher.Constraint("Perpendicular", 36, 38))
sketch3.addConstraint(Sketcher.Constraint("Equal", 0, 2))
sketch3.addConstraint(Sketcher.Constraint("Equal", 6, 8))
sketch3.addConstraint(Sketcher.Constraint("Equal", 8, 10))
sketch3.addConstraint(Sketcher.Constraint("Equal", 14, 16))
sketch3.addConstraint(Sketcher.Constraint("Equal", 16, 18))
sketch3.addConstraint(Sketcher.Constraint("Equal", 22, 24))
sketch3.addConstraint(Sketcher.Constraint("Equal", 24, 26))
sketch3.addConstraint(Sketcher.Constraint("Equal", 30, 32))
sketch3.addConstraint(Sketcher.Constraint("Equal", 32, 34))
sketch3.addConstraint(Sketcher.Constraint("Radius", 1, Q("0.25 in")))
sketch3.addConstraint(Sketcher.Constraint("DistanceY", 9, 3, 5, 3, Q("4.139 in")))
sketch3.addConstraint(Sketcher.Constraint("DistanceY", 17, 3, 13, 3, Q("3.645 in")))
sketch3.addConstraint(Sketcher.Constraint("DistanceY", 25, 3, 23, 3, Q("4.139 in")))
sketch3.addConstraint(Sketcher.Constraint("DistanceY", 33, 3, 31, 3, Q("3.645 in")))
sketch3.addConstraint(Sketcher.Constraint("DistanceX", -1, 1, 27, 3, Q("8.0359 in")))
sketch3.addConstraint(Sketcher.Constraint("Distance", 0, Q("22.428 mm")))
sketch3.addConstraint(Sketcher.Constraint("DistanceX", -1, 1, 7, 3, Q("204.077698 mm")))
sketch3.addConstraint(Sketcher.Constraint("DistanceX", 28, 2, 32, 2, Q("6.356701 mm")))
sketch3.addConstraint(Sketcher.Constraint("DistanceY", -1, 1, 5, 3, Q("142.715412 mm")))
sketch3.addConstraint(Sketcher.Constraint("DistanceX", -1, 1, 9, 3, Q("226.51674 mm")))
sketch3.addConstraint(Sketcher.Constraint("DistanceX", -1, 1, 17, 3, Q("204.100819 mm")))
sketch3.addConstraint(Sketcher.Constraint("DistanceY", 25, 3, -1, 1, Q("160.131142 mm")))
pocket2 = body.newObject("PartDesign::Pocket", "Pocket001")
pocket2.Profile = sketch3
pocket2.Type = "ThroughAll"

# Sketch on XY plane
sketch4 = body.newObject("Sketcher::SketchObject", "Sketch003")
sketch4.AttachmentSupport = (doc.getObject("XY_Plane"), [""])
sketch4.MapMode = "FlatFace"
sketch4.AttachmentOffset = App.Placement(Vector(0, 0, 0.125 * 25.4), App.Rotation())
sketch4.addGeometry(Part.Circle(Vector(296, -141.6, 0), Vector(0, 0, 1), 2), False)
sketch4.addGeometry(Part.Circle(Vector(394.3, 152.2, 0), Vector(0, 0, 1), 2), False)
sketch4.addGeometry(Part.Circle(Vector(267.7, 71.4, 0), Vector(0, 0, 1), 2), False)
sketch4.addGeometry(Part.Circle(Vector(83.8, 78.6, 0), Vector(0, 0, 1), 2), False)
sketch4.addGeometry(Part.Circle(Vector(-13.7, -71.4, 0), Vector(0, 0, 1), 2), False)
sketch4.addGeometry(Part.Circle(Vector(349.9, 11.1, 0), Vector(0, 0, 1), 2), False)
sketch4.addGeometry(Part.Circle(Vector(322.4, -26.1, 0), Vector(0, 0, 1), 2), False)
sketch4.addGeometry(Part.Circle(Vector(342.2, -141.6, 0), Vector(0, 0, 1), 2), False)
sketch4.addGeometry(Part.Circle(Vector(345.5, -214.3, 0), Vector(0, 0, 1), 2), False)
sketch4.addGeometry(Part.Circle(Vector(119.4, -93.1, 0), Vector(0, 0, 1), 2), False)
sketch4.addGeometry(Part.Circle(Vector(240.7, -144.5, 0), Vector(0, 0, 1), 2), False)
sketch4.addGeometry(Part.Circle(Vector(273.5, -214.4, 0), Vector(0, 0, 1), 2), False)
sketch4.addConstraint(Sketcher.Constraint("Equal", 0, 1))
sketch4.addConstraint(Sketcher.Constraint("Equal", 1, 2))
sketch4.addConstraint(Sketcher.Constraint("Equal", 2, 3))
sketch4.addConstraint(Sketcher.Constraint("Equal", 3, 4))
sketch4.addConstraint(Sketcher.Constraint("Equal", 4, 5))
sketch4.addConstraint(Sketcher.Constraint("Equal", 5, 6))
sketch4.addConstraint(Sketcher.Constraint("Equal", 6, 7))
sketch4.addConstraint(Sketcher.Constraint("Equal", 7, 8))
sketch4.addConstraint(Sketcher.Constraint("Equal", 8, 9))
sketch4.addConstraint(Sketcher.Constraint("Equal", 9, 10))
sketch4.addConstraint(Sketcher.Constraint("Equal", 10, 11))
sketch4.addConstraint(Sketcher.Constraint("Diameter", 0, Q("0.157 in")))
sketch4.addConstraint(Sketcher.Constraint("DistanceY", 4, 3, 1, 3, Q("8.8009 in")))
sketch4.addConstraint(Sketcher.Constraint("DistanceX", -1, 1, 8, 3, Q("345.511301 mm")))
sketch4.addConstraint(Sketcher.Constraint("DistanceY", 10, 3, -1, 1, Q("144.493499 mm")))
sketch4.addConstraint(Sketcher.Constraint("DistanceX", -1, 1, 11, 3, Q("273.511301 mm")))
sketch4.addConstraint(Sketcher.Constraint("DistanceY", 2, 3, 1, 3, Q("80.798302 mm")))
sketch4.addConstraint(Sketcher.Constraint("DistanceX", 6, 3, 5, 3, Q("27.496101 mm")))
sketch4.addConstraint(Sketcher.Constraint("DistanceX", 0, 3, 7, 3, Q("46.2 mm")))
sketch4.addConstraint(Sketcher.Constraint("DistanceY", 7, 3, 5, 3, Q("152.674799 mm")))
sketch4.addConstraint(Sketcher.Constraint("DistanceX", 9, 3, 0, 3, Q("176.632598 mm")))
sketch4.addConstraint(Sketcher.Constraint("DistanceX", 9, 3, 10, 3, Q("121.290401 mm")))
sketch4.addConstraint(Sketcher.Constraint("DistanceX", -1, 1, 0, 3, Q("296.03866 mm")))
sketch4.addConstraint(Sketcher.Constraint("DistanceY", -1, 1, 1, 3, Q("152.156539 mm")))
sketch4.addConstraint(Sketcher.Constraint("DistanceX", -1, 1, 3, 3, Q("83.796929 mm")))
sketch4.addConstraint(Sketcher.Constraint("DistanceY", 8, 3, -1, 1, Q("214.349591 mm")))
sketch4.addConstraint(Sketcher.Constraint("DistanceY", 0, 3, 3, 3, Q("220.22871 mm")))
sketch4.addConstraint(Sketcher.Constraint("DistanceX", 3, 3, 1, 3, Q("310.538379 mm")))
sketch4.addConstraint(Sketcher.Constraint("DistanceX", 4, 3, 2, 3, Q("281.428609 mm")))
sketch4.addConstraint(Sketcher.Constraint("DistanceX", 2, 3, 5, 3, Q("82.232332 mm")))
sketch4.addConstraint(Sketcher.Constraint("DistanceY", 0, 3, 5, 3, Q("152.679651 mm")))
sketch4.addConstraint(Sketcher.Constraint("DistanceY", 6, 3, 5, 3, Q("37.12687 mm")))
sketch4.addConstraint(Sketcher.Constraint("DistanceY", 7, 3, 2, 3, Q("212.958172 mm")))
sketch4.addConstraint(Sketcher.Constraint("DistanceX", 4, 3, 9, 3, Q("133.143378 mm")))
sketch4.addConstraint(Sketcher.Constraint("DistanceY", 9, 3, 3, 3, Q("171.695161 mm")))
sketch4.addConstraint(Sketcher.Constraint("DistanceY", 11, 3, 7, 3, Q("72.757219 mm")))
pocket3 = body.newObject("PartDesign::Pocket", "Pocket002")
pocket3.Profile = sketch4
pocket3.Type = "ThroughAll"

# Sketch on XY plane
sketch5 = body.newObject("Sketcher::SketchObject", "Sketch004")
sketch5.AttachmentSupport = (doc.getObject("XY_Plane"), [""])
sketch5.MapMode = "FlatFace"
sketch5.AttachmentOffset = App.Placement(Vector(0, 0, 0.125 * 25.4), App.Rotation())
sketch5.addGeometry(Part.LineSegment(Vector(476.9, -78.2, 0), Vector(473, -78.2, 0)), False)
sketch5.addGeometry(Part.LineSegment(Vector(473, -78.2, 0), Vector(473, -134, 0)), False)
sketch5.addGeometry(Part.LineSegment(Vector(473, -134, 0), Vector(476.9, -134, 0)), False)
sketch5.addGeometry(Part.LineSegment(Vector(476.9, -134, 0), Vector(476.9, -78.2, 0)), False)
sketch5.addConstraint(Sketcher.Constraint("Coincident", 0, 2, 1, 1))
sketch5.addConstraint(Sketcher.Constraint("Coincident", 1, 2, 2, 1))
sketch5.addConstraint(Sketcher.Constraint("Coincident", 2, 2, 3, 1))
sketch5.addConstraint(Sketcher.Constraint("Coincident", 3, 2, 0, 1))
sketch5.addConstraint(Sketcher.Constraint("Horizontal", 0))
sketch5.addConstraint(Sketcher.Constraint("Vertical", 1))
sketch5.addConstraint(Sketcher.Constraint("Horizontal", 2))
sketch5.addConstraint(Sketcher.Constraint("DistanceY", 1, 2, 1, 1, Q("2.2 in")))
sketch5.addConstraint(Sketcher.Constraint("DistanceX", 0, 2, 0, 1, Q("3.948566 mm")))
sketch5.addConstraint(Sketcher.Constraint("DistanceX", 2, 1, 2, 2, Q("3.954435 mm")))
sketch5.addConstraint(Sketcher.Constraint("DistanceX", -1, 1, 0, 2, Q("472.960931 mm")))
sketch5.addConstraint(Sketcher.Constraint("DistanceY", 0, 2, -1, 1, Q("78.154205 mm")))
pocket4 = body.newObject("PartDesign::Pocket", "Pocket003")
pocket4.Profile = sketch5
pocket4.Type = "ThroughAll"
doc.recompute()

fillet = body.newObject("PartDesign::Fillet", "Fillet")
fillet.Base = (pocket4, edges_at(pocket4, [
    (472.961, -134.034, 1.587),
    (472.961, -78.154, 1.587),
    (476.909, -78.154, 1.587),
    (476.915, -134.034, 1.587),
    (-144.325, -311.514, 1.587),
    (-144.375, 172.737, 1.587),
    (476.883, 172.803, 1.587),
    (476.934, -311.448, 1.587),
]))
fillet.Radius = Q("0.0625 in")

doc.recompute()
